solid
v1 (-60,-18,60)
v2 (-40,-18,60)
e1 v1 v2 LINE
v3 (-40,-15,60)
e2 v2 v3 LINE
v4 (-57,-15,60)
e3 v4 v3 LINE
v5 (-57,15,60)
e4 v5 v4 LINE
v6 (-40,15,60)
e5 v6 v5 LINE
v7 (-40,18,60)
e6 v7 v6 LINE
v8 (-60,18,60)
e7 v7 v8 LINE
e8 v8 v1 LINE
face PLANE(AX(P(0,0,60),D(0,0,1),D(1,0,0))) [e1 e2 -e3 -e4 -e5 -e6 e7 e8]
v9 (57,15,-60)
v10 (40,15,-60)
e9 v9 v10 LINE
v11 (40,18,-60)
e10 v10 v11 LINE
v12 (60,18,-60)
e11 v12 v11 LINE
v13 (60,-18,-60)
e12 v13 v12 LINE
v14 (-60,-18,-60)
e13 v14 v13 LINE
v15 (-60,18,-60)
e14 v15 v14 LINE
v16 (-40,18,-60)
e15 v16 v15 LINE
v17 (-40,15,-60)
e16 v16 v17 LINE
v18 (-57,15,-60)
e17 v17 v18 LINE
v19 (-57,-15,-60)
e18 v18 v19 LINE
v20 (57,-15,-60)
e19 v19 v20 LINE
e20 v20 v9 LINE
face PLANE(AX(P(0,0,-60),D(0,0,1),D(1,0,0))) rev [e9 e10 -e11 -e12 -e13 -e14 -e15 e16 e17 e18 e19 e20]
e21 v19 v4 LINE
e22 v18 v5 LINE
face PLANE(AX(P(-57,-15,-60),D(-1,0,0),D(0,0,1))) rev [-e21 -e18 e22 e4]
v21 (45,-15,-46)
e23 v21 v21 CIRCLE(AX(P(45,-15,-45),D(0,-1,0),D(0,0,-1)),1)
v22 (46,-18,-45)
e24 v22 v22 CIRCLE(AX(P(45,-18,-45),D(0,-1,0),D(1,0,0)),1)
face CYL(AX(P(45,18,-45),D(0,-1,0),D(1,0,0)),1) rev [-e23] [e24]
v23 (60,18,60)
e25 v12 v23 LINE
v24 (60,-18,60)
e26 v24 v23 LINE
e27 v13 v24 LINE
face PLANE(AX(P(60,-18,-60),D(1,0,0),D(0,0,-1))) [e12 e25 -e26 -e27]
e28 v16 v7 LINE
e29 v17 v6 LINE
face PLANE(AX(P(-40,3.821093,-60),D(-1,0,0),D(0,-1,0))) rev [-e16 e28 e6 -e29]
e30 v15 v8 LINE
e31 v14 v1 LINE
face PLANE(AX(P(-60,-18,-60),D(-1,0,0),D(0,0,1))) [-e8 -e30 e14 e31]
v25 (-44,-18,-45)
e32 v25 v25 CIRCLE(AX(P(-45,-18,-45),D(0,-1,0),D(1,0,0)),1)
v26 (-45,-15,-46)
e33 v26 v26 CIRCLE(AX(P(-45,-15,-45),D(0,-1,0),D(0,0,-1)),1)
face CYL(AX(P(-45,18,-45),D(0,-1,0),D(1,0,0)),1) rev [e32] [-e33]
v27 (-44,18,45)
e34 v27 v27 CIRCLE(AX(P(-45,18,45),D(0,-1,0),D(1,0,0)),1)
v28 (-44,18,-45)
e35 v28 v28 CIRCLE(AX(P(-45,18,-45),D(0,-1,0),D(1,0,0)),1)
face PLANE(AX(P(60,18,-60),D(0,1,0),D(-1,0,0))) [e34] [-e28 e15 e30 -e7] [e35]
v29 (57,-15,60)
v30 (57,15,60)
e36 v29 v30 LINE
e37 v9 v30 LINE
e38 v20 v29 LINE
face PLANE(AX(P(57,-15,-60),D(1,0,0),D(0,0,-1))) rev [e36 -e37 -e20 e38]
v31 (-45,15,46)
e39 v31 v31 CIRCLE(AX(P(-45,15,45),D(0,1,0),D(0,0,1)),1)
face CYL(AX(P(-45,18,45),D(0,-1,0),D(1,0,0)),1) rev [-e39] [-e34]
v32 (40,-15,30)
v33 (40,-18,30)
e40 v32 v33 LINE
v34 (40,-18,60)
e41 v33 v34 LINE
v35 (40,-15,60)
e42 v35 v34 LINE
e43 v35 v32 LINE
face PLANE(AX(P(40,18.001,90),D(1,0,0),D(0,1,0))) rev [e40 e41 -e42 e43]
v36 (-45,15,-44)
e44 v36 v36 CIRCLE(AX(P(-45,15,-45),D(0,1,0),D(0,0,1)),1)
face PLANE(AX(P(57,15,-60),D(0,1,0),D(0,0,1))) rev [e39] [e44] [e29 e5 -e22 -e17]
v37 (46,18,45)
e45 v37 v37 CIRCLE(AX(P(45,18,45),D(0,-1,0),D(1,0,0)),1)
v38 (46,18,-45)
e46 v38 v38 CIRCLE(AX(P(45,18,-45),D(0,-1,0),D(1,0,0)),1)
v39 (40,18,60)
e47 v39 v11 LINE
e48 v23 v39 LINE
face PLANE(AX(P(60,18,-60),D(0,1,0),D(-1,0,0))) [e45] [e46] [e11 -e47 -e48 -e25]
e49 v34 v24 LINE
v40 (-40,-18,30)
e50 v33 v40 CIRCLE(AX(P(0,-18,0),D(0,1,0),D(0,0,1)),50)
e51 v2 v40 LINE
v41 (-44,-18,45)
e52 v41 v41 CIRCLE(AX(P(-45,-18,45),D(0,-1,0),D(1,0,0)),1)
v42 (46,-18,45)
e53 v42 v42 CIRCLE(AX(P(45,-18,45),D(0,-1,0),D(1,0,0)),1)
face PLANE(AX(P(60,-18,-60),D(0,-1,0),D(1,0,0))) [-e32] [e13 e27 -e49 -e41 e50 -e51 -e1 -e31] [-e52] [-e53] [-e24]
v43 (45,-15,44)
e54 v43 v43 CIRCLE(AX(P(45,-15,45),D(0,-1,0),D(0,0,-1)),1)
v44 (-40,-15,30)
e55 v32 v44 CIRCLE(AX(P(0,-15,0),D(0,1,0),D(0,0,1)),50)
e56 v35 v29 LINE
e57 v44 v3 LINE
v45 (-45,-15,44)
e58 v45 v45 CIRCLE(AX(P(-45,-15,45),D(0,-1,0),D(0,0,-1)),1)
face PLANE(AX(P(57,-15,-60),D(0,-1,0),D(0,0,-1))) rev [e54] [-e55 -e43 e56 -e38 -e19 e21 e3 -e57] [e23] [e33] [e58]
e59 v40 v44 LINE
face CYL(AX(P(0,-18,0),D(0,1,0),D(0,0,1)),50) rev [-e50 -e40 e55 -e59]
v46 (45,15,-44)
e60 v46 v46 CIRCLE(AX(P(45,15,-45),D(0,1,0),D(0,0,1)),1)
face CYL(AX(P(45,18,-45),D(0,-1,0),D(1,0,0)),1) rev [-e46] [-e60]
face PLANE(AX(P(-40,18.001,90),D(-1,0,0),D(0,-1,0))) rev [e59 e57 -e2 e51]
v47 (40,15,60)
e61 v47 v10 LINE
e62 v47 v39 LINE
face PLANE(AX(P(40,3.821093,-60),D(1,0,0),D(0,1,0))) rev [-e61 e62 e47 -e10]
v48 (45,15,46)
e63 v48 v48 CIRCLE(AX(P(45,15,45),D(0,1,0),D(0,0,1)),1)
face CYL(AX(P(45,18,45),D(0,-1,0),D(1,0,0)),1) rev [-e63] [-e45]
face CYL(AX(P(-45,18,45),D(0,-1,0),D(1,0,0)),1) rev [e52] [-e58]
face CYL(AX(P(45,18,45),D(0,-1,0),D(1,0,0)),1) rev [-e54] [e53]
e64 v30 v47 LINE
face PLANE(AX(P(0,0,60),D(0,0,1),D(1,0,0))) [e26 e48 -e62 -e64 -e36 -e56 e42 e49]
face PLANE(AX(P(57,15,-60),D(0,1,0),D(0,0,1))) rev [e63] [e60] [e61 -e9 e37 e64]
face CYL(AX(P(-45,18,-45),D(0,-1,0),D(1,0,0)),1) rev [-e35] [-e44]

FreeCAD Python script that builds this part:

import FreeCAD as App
import Part
import Sketcher
from FreeCAD import Vector
Q = App.Units.Quantity

doc = App.newDocument("Part")
params = doc.addObject("Spreadsheet::Sheet", "Params")
for row, (alias, value) in enumerate([
    ("sketch1_width", "120 mm"),
    ("sketch1_height", "36 mm"),
    ("pad1_length", "60 mm"),
    ("pad1_length2", "60 mm"),
    ("sketch2_width", "114 mm"),
    ("sketch2_height", "30 mm"),
    ("sketch3_width", "80 mm"),
    ("sketch4_diameter", "100 mm"),
    ("sketch5_diameter", "2 mm"),
    ("sketch6_width", "80 mm"),
    ("sketch6_height", "60 mm"),
], start=1):
    params.set(f"A{row}", alias)
    params.set(f"B{row}", "=" + value)
    params.setAlias(f"B{row}", alias)

body = doc.addObject("PartDesign::Body", "Body")

# Sketch on XY plane
sketch1 = body.newObject("Sketcher::SketchObject", "Sketch")
sketch1.AttachmentSupport = (doc.getObject("XY_Plane"), [""])
sketch1.MapMode = "FlatFace"
sketch1.addGeometry(Part.LineSegment(Vector(-60, 18, 0), Vector(-60, -18, 0)), False)
sketch1.addGeometry(Part.LineSegment(Vector(-60, -18, 0), Vector(60, -18, 0)), False)
sketch1.addGeometry(Part.LineSegment(Vector(60, -18, 0), Vector(60, 18, 0)), False)
sketch1.addGeometry(Part.LineSegment(Vector(60, 18, 0), Vector(-60, 18, 0)), False)
sketch1.addConstraint(Sketcher.Constraint("Coincident", 0, 2, 1, 1))
sketch1.addConstraint(Sketcher.Constraint("Coincident", 1, 2, 2, 1))
sketch1.addConstraint(Sketcher.Constraint("Coincident", 2, 2, 3, 1))
sketch1.addConstraint(Sketcher.Constraint("Coincident", 3, 2, 0, 1))
sketch1.addConstraint(Sketcher.Constraint("Vertical", 0))
sketch1.addConstraint(Sketcher.Constraint("Horizontal", 1))
sketch1.addConstraint(Sketcher.Constraint("Vertical", 2))
sketch1.addConstraint(Sketcher.Constraint("Horizontal", 3))
sketch1.addConstraint(Sketcher.Constraint("Symmetric", 0, 2, 2, 2, -1, 1))
sketch1.addConstraint(Sketcher.Constraint("DistanceX", 1, 1, 1, 2, Q("120 mm")))
sketch1.addConstraint(Sketcher.Constraint("DistanceY", 0, 2, 0, 1, Q("36 mm")))
sketch1.setExpression("Constraints[9]", "Params.sketch1_width")
sketch1.setExpression("Constraints[10]", "Params.sketch1_height")
pad1 = body.newObject("PartDesign::Pad", "Pad")
pad1.Profile = sketch1
pad1.Type = "TwoLengths"
pad1.setExpression("Length", "Params.pad1_length")
pad1.setExpression("Length2", "Params.pad1_length2")

# Sketch on XY plane
sketch2 = body.newObject("Sketcher::SketchObject", "Sketch001")
sketch2.AttachmentSupport = (doc.getObject("XY_Plane"), [""])
sketch2.MapMode = "FlatFace"
sketch2.AttachmentOffset = App.Placement(Vector(0, 0, 60), App.Rotation())
sketch2.addGeometry(Part.LineSegment(Vector(-57, 15, 0), Vector(-57, -15, 0)), False)
sketch2.addGeometry(Part.LineSegment(Vector(-57, -15, 0), Vector(57, -15, 0)), False)
sketch2.addGeometry(Part.LineSegment(Vector(57, -15, 0), Vector(57, 15, 0)), False)
sketch2.addGeometry(Part.LineSegment(Vector(57, 15, 0), Vector(-57, 15, 0)), False)
sketch2.addConstraint(Sketcher.Constraint("Coincident", 0, 2, 1, 1))
sketch2.addConstraint(Sketcher.Constraint("Coincident", 1, 2, 2, 1))
sketch2.addConstraint(Sketcher.Constraint("Coincident", 2, 2, 3, 1))
sketch2.addConstraint(Sketcher.Constraint("Coincident", 3, 2, 0, 1))
sketch2.addConstraint(Sketcher.Constraint("Vertical", 0))
sketch2.addConstraint(Sketcher.Constraint("Horizontal", 1))
sketch2.addConstraint(Sketcher.Constraint("Vertical", 2))
sketch2.addConstraint(Sketcher.Constraint("Horizontal", 3))
sketch2.addConstraint(Sketcher.Constraint("Symmetric", 0, 2, 2, 2, -1, 1))
sketch2.addConstraint(Sketcher.Constraint("DistanceX", 1, 1, 1, 2, Q("114 mm")))
sketch2.addConstraint(Sketcher.Constraint("DistanceY", 0, 2, 0, 1, Q("30 mm")))
sketch2.setExpression("Constraints[9]", "Params.sketch2_width")
sketch2.setExpression("Constraints[10]", "Params.sketch2_height")
pocket1 = body.newObject("PartDesign::Pocket", "Pocket")
pocket1.Profile = sketch2
pocket1.Type = "ThroughAll"

# Sketch on XY plane
sketch3 = body.newObject("Sketcher::SketchObject", "Sketch002")
sketch3.AttachmentSupport = (doc.getObject("XY_Plane"), [""])
sketch3.MapMode = "FlatFace"
sketch3.AttachmentOffset = App.Placement(Vector(0, 0, 60), App.Rotation())
sketch3.addGeometry(Part.LineSegment(Vector(-40, 26, 0), Vector(-40, 4, 0)), False)
sketch3.addGeometry(Part.LineSegment(Vector(-40, 4, 0), Vector(40, 4, 0)), False)
sketch3.addGeometry(Part.LineSegment(Vector(40, 4, 0), Vector(40, 26, 0)), False)
sketch3.addGeometry(Part.LineSegment(Vector(40, 26, 0), Vector(-40, 26, 0)), False)
sketch3.addConstraint(Sketcher.Constraint("Coincident", 0, 2, 1, 1))
sketch3.addConstraint(Sketcher.Constraint("Coincident", 1, 2, 2, 1))
sketch3.addConstraint(Sketcher.Constraint("Coincident", 2, 2, 3, 1))
sketch3.addConstraint(Sketcher.Constraint("Coincident", 3, 2, 0, 1))
sketch3.addConstraint(Sketcher.Constraint("Vertical", 0))
sketch3.addConstraint(Sketcher.Constraint("Horizontal", 1))
sketch3.addConstraint(Sketcher.Constraint("Vertical", 2))
sketch3.addConstraint(Sketcher.Constraint("Horizontal", 3))
sketch3.addConstraint(Sketcher.Constraint("DistanceX", 1, 1, 1, 2, Q("80 mm")))
sketch3.addConstraint(Sketcher.Constraint("DistanceX", 0, 2, -1, 1, Q("40 mm")))
sketch3.addConstraint(Sketcher.Constraint("DistanceY", 0, 2, 0, 1, Q("22.357814 mm")))
sketch3.addConstraint(Sketcher.Constraint("DistanceY", -1, 1, 0, 2, Q("3.821093 mm")))
sketch3.setExpression("Constraints[8]", "Params.sketch3_width")
pocket2 = body.newObject("PartDesign::Pocket", "Pocket001")
pocket2.Profile = sketch3
pocket2.Type = "ThroughAll"

# Sketch on XZ plane
sketch4 = body.newObject("Sketcher::SketchObject", "Sketch003")
sketch4.AttachmentSupport = (doc.getObject("XZ_Plane"), [""])
sketch4.MapMode = "FlatFace"
sketch4.AttachmentOffset = App.Placement(Vector(0, 0, 15), App.Rotation())
sketch4.addGeometry(Part.Circle(Vector(0, 0, 0), Vector(0, 0, 1), 50), False)
sketch4.addConstraint(Sketcher.Constraint("Coincident", 0, 3, -1, 1))
sketch4.addConstraint(Sketcher.Constraint("Diameter", 0, Q("100 mm")))
sketch4.setExpression("Constraints[1]", "Params.sketch4_diameter")
pocket3 = body.newObject("PartDesign::Pocket", "Pocket002")
pocket3.Profile = sketch4
pocket3.Type = "ThroughAll"
pocket3.Reversed = True

# Sketch on XZ plane
sketch5 = body.newObject("Sketcher::SketchObject", "Sketch004")
sketch5.AttachmentSupport = (doc.getObject("XZ_Plane"), [""])
sketch5.MapMode = "FlatFace"
sketch5.AttachmentOffset = App.Placement(Vector(0, 0, 18), App.Rotation())
sketch5.addGeometry(Part.Circle(Vector(-45, 45, 0), Vector(0, 0, 1), 1), False)
sketch5.addGeometry(Part.Circle(Vector(45, 45, 0), Vector(0, 0, 1), 1), False)
sketch5.addGeometry(Part.Circle(Vector(45, -45, 0), Vector(0, 0, 1), 1), False)
sketch5.addGeometry(Part.Circle(Vector(-45, -45, 0), Vector(0, 0, 1), 1), False)
sketch5.addConstraint(Sketcher.Constraint("Equal", 0, 1))
sketch5.addConstraint(Sketcher.Constraint("Equal", 1, 2))
sketch5.addConstraint(Sketcher.Constraint("Equal", 2, 3))
sketch5.addConstraint(Sketcher.Constraint("Symmetric", 0, 3, 2, 3, -1, 1))
sketch5.addConstraint(Sketcher.Constraint("Symmetric", 1, 3, 3, 3, -1, 1))
sketch5.addConstraint(Sketcher.Constraint("Symmetric", 0, 3, 1, 3, -2))
sketch5.addConstraint(Sketcher.Constraint("Diameter", 0, Q("2 mm")))
sketch5.addConstraint(Sketcher.Constraint("DistanceX", 0, 3, -1, 1, Q("45 mm")))
sketch5.addConstraint(Sketcher.Constraint("DistanceY", -1, 1, 0, 3, Q("45 mm")))
sketch5.setExpression("Constraints[6]", "Params.sketch5_diameter")
pocket4 = body.newObject("PartDesign::Pocket", "Pocket003")
pocket4.Profile = sketch5
pocket4.Type = "ThroughAll"

# Sketch on XZ plane
sketch6 = body.newObject("Sketcher::SketchObject", "Sketch005")
sketch6.AttachmentSupport = (doc.getObject("XZ_Plane"), [""])
sketch6.MapMode = "FlatFace"
sketch6.AttachmentOffset = App.Placement(Vector(0, 0, 18), App.Rotation())
sketch6.addGeometry(Part.LineSegment(Vector(-40, 90, 0), Vector(-40, 30, 0)), False)
sketch6.addGeometry(Part.LineSegment(Vector(-40, 30, 0), Vector(40, 30, 0)), False)
sketch6.addGeometry(Part.LineSegment(Vector(40, 30, 0), Vector(40, 90, 0)), False)
sketch6.addGeometry(Part.LineSegment(Vector(40, 90, 0), Vector(-40, 90, 0)), False)
sketch6.addConstraint(Sketcher.Constraint("Coincident", 0, 2, 1, 1))
sketch6.addConstraint(Sketcher.Constraint("Coincident", 1, 2, 2, 1))
sketch6.addConstraint(Sketcher.Constraint("Coincident", 2, 2, 3, 1))
sketch6.addConstraint(Sketcher.Constraint("Coincident", 3, 2, 0, 1))
sketch6.addConstraint(Sketcher.Constraint("Vertical", 0))
sketch6.addConstraint(Sketcher.Constraint("Horizontal", 1))
sketch6.addConstraint(Sketcher.Constraint("Vertical", 2))
sketch6.addConstraint(Sketcher.Constraint("Horizontal", 3))
sketch6.addConstraint(Sketcher.Constraint("DistanceX", 1, 1, 1, 2, Q("80 mm")))
sketch6.addConstraint(Sketcher.Constraint("DistanceY", 0, 2, 0, 1, Q("60 mm")))
sketch6.addConstraint(Sketcher.Constraint("DistanceX", 0, 2, -1, 1, Q("40 mm")))
sketch6.addConstraint(Sketcher.Constraint("DistanceY", -1, 1, 0, 2, Q("30 mm")))
sketch6.setExpression("Constraints[8]", "Params.sketch6_width")
sketch6.setExpression("Constraints[9]", "Params.sketch6_height")
pocket5 = body.newObject("PartDesign::Pocket", "Pocket004")
pocket5.Profile = sketch6
pocket5.Type = "UpToFirst"

doc.recompute()
